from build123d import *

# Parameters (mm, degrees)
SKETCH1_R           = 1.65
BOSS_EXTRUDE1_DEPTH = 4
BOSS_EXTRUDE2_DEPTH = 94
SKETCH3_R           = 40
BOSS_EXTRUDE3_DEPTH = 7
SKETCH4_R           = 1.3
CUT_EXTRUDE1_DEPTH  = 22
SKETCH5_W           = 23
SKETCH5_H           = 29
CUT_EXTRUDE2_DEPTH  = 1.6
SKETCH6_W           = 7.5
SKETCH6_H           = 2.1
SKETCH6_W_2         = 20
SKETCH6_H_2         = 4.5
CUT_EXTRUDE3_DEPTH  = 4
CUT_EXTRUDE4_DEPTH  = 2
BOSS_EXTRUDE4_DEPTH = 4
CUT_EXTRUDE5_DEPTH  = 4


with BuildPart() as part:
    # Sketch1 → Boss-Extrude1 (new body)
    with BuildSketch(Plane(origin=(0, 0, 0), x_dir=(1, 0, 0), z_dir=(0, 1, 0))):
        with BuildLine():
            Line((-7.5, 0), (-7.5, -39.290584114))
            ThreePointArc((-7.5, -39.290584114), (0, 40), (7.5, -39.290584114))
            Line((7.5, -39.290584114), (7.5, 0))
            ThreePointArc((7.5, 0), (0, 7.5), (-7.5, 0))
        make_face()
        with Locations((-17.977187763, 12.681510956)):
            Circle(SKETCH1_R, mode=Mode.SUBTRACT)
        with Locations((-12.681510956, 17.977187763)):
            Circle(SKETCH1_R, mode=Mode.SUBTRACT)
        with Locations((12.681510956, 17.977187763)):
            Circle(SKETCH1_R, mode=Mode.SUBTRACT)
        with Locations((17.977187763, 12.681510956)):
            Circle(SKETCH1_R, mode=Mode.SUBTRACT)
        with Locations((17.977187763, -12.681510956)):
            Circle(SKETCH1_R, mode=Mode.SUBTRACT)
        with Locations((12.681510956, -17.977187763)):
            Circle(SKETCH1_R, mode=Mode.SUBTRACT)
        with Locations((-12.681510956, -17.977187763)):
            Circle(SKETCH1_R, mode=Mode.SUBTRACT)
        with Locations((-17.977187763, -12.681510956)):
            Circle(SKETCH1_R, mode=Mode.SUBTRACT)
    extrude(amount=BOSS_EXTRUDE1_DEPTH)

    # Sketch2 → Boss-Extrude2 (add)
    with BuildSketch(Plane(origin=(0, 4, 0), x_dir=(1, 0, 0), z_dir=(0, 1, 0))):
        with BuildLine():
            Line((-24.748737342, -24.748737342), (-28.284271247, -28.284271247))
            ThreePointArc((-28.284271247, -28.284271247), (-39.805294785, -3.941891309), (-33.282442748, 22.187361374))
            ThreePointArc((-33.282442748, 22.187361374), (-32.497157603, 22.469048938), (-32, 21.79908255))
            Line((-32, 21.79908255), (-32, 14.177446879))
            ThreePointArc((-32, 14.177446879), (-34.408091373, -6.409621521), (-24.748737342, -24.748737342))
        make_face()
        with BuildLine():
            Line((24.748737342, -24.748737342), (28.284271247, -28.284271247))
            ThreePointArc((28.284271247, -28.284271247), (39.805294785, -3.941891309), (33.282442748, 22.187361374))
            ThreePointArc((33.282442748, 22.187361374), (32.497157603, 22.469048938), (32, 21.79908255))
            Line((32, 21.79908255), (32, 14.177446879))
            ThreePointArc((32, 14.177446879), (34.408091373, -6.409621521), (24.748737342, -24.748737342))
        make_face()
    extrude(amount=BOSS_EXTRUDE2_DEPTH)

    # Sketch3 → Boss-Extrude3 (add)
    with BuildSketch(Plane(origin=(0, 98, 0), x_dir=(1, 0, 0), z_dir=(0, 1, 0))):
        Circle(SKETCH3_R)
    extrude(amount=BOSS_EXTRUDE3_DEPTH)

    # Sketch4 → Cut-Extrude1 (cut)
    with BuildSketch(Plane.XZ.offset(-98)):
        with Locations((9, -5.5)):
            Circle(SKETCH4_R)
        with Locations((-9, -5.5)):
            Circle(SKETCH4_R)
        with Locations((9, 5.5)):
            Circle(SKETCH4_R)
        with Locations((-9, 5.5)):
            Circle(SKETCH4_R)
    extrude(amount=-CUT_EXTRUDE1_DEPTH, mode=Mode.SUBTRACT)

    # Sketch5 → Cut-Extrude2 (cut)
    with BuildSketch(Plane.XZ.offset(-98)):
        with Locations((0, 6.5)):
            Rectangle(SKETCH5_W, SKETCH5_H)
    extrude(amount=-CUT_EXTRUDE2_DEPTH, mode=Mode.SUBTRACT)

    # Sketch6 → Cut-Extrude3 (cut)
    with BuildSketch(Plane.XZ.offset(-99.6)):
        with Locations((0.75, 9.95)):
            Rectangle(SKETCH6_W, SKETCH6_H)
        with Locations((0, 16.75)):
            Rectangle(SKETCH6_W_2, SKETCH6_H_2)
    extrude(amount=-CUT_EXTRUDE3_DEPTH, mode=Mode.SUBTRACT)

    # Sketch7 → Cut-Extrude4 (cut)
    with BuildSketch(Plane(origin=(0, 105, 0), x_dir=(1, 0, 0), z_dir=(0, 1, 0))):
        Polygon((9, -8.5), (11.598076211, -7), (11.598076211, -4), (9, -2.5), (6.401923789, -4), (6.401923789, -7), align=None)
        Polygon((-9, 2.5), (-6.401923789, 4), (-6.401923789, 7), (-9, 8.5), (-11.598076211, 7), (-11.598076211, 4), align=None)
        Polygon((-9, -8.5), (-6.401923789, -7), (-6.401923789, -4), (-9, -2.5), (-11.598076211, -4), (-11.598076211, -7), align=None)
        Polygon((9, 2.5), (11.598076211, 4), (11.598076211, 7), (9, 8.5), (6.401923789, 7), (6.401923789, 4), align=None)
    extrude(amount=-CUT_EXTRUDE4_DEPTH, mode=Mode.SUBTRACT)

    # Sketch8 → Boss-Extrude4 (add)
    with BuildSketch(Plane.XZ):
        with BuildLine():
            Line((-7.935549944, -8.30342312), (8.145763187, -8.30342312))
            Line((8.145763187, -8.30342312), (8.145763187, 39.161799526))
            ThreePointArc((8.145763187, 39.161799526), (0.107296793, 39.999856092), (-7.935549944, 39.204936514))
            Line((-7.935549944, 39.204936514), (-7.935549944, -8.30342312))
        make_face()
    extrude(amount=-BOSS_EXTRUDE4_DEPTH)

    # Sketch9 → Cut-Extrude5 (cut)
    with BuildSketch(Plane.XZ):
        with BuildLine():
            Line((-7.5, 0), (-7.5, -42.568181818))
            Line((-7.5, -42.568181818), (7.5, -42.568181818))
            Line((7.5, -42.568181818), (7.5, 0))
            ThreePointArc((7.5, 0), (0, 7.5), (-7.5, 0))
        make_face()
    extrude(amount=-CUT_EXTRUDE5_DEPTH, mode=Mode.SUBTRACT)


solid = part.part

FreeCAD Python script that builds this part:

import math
import FreeCAD as App
import Part
import Sketcher
Q = App.Units.Quantity


def add_polygon(sketch, points):
    """Adds a closed chain of lines whose ends are joined by coincident constraints."""
    first, n = sketch.GeometryCount, len(points)
    for a, b in zip(points, points[1:] + points[:1]):
        sketch.addGeometry(Part.LineSegment(App.Vector(*a, 0), App.Vector(*b, 0)), False)
    for i in range(n):
        sketch.addConstraint(Sketcher.Constraint("Coincident", first + i, 2, first + (i + 1) % n, 1))

doc = App.newDocument("Part")
params = doc.addObject("Spreadsheet::Sheet", "Params")
for row, (alias, value) in enumerate([
    ("sketch1_radius", "40 mm"),
    ("sketch1_diameter", "3.3 mm"),
    ("sketch1_radius2", "7.5 mm"),
    ("pad1_length", "4 mm"),
    ("sketch2_radius", "35 mm"),
    ("sketch2_radius2", "40 mm"),
    ("sketch2_radius3", "0.7 mm"),
    ("pad2_length", "94 mm"),
    ("sketch3_diameter", "80 mm"),
    ("pad3_length", "7 mm"),
    ("sketch4_diameter", "2.6 mm"),
    ("pocket1_length", "22 mm"),
    ("sketch5_width", "23 mm"),
    ("sketch5_height", "29 mm"),
    ("pocket2_length", "1.6 mm"),
    ("sketch6_width", "20 mm"),
    ("sketch6_width2", "7.5 mm"),
    ("sketch6_height", "2.1 mm"),
    ("sketch6_height2", "4.5 mm"),
    ("pocket3_length", "4 mm"),
    ("sketch7_height", "3 mm"),
    ("sketch7_length", "3 mm"),
    ("pocket4_length", "2 mm"),
    ("sketch8_radius", "40 mm"),
    ("pad4_length", "4 mm"),
    ("sketch9_radius", "7.5 mm"),
    ("pocket5_length", "4 mm"),
], start=1):
    params.set(f"A{row}", alias)
    params.set(f"B{row}", "=" + value)
    params.setAlias(f"B{row}", alias)

body = doc.addObject("PartDesign::Body", "Body")

sketch1 = doc.addObject("Sketcher::SketchObject", "Sketch")
body.addObject(sketch1)
sketch1.AttachmentSupport = (doc.XZ_Plane, [""])
sketch1.MapMode = "FlatFace"
sketch1.addGeometry(Part.LineSegment(App.Vector(-7.5, 39.3, 0), App.Vector(-7.5, 0, 0)), False)
sketch1.addGeometry(Part.ArcOfCircle(Part.Circle(App.Vector(0, 0, 0), App.Vector(0, 0, 1), 7.5), math.radians(180), math.radians(360)), False)
sketch1.addGeometry(Part.LineSegment(App.Vector(7.5, 0, 0), App.Vector(7.5, 39.3, 0)), False)
sketch1.addGeometry(Part.ArcOfCircle(Part.Circle(App.Vector(0, 0, 0), App.Vector(0, 0, 1), 40), math.radians(101), math.radians(439)), False)
sketch1.addGeometry(Part.Circle(App.Vector(12.7, 18, 0), App.Vector(0, 0, 1), 1.6), False)
sketch1.addGeometry(Part.Circle(App.Vector(18, 12.7, 0), App.Vector(0, 0, 1), 1.6), False)
sketch1.addGeometry(Part.Circle(App.Vector(-12.7, 18, 0), App.Vector(0, 0, 1), 1.6), False)
sketch1.addGeometry(Part.Circle(App.Vector(-18, 12.7, 0), App.Vector(0, 0, 1), 1.6), False)
sketch1.addGeometry(Part.Circle(App.Vector(18, -12.7, 0), App.Vector(0, 0, 1), 1.6), False)
sketch1.addGeometry(Part.Circle(App.Vector(12.7, -18, 0), App.Vector(0, 0, 1), 1.6), False)
sketch1.addGeometry(Part.Circle(App.Vector(-18, -12.7, 0), App.Vector(0, 0, 1), 1.6), False)
sketch1.addGeometry(Part.Circle(App.Vector(-12.7, -18, 0), App.Vector(0, 0, 1), 1.6), False)
sketch1.addConstraint(Sketcher.Constraint("Tangent", 0, 2, 1, 1))
sketch1.addConstraint(Sketcher.Constraint("Tangent", 1, 2, 2, 1))
sketch1.addConstraint(Sketcher.Constraint("Coincident", 2, 2, 3, 2))
sketch1.addConstraint(Sketcher.Constraint("Coincident", 3, 1, 0, 1))
sketch1.addConstraint(Sketcher.Constraint("Vertical", 0))
sketch1.addConstraint(Sketcher.Constraint("Vertical", 2))
sketch1.addConstraint(Sketcher.Constraint("Coincident", 1, 3, -1, 1))
sketch1.addConstraint(Sketcher.Constraint("Coincident", 3, 3, -1, 1))
sketch1.addConstraint(Sketcher.Constraint("Equal", 4, 5))
sketch1.addConstraint(Sketcher.Constraint("Equal", 5, 6))
sketch1.addConstraint(Sketcher.Constraint("Equal", 6, 7))
sketch1.addConstraint(Sketcher.Constraint("Equal", 7, 8))
sketch1.addConstraint(Sketcher.Constraint("Equal", 8, 9))
sketch1.addConstraint(Sketcher.Constraint("Equal", 9, 10))
sketch1.addConstraint(Sketcher.Constraint("Equal", 10, 11))
sketch1.addConstraint(Sketcher.Constraint("Symmetric", 7, 3, 8, 3, -1, 1))
sketch1.addConstraint(Sketcher.Constraint("Symmetric", 6, 3, 9, 3, -1, 1))
sketch1.addConstraint(Sketcher.Constraint("Symmetric", 5, 3, 10, 3, -1, 1))
sketch1.addConstraint(Sketcher.Constraint("Symmetric", 4, 3, 11, 3, -1, 1))
sketch1.addConstraint(Sketcher.Constraint("Symmetric", 4, 3, 6, 3, -2))
sketch1.addConstraint(Sketcher.Constraint("Symmetric", 5, 3, 7, 3, -2))
sketch1.addConstraint(Sketcher.Constraint("Radius", 3, Q("40 mm")))
sketch1.addConstraint(Sketcher.Constraint("Diameter", 4, Q("3.3 mm")))
sketch1.addConstraint(Sketcher.Constraint("Radius", 1, Q("7.5 mm")))
sketch1.addConstraint(Sketcher.Constraint("DistanceX", 6, 3, 5, 3, Q("30.658699 mm")))
sketch1.addConstraint(Sketcher.Constraint("DistanceY", 8, 3, 4, 3, Q("30.658699 mm")))
sketch1.addConstraint(Sketcher.Constraint("DistanceX", -1, 1, 4, 3, Q("12.681511 mm")))
sketch1.addConstraint(Sketcher.Constraint("DistanceY", -1, 1, 5, 3, Q("12.681511 mm")))
sketch1.setExpression("Constraints[21]", "Params.sketch1_radius")
sketch1.setExpression("Constraints[22]", "Params.sketch1_diameter")
sketch1.setExpression("Constraints[23]", "Params.sketch1_radius2")
pad1 = doc.addObject("PartDesign::Pad", "Pad")
body.addObject(pad1)
pad1.Profile = sketch1
pad1.setExpression("Length", "Params.pad1_length")
pad1.Reversed = True

sketch2 = doc.addObject("Sketcher::SketchObject", "Sketch001")
body.addObject(sketch2)
sketch2.AttachmentSupport = (doc.XZ_Plane, [""])
sketch2.MapMode = "FlatFace"
sketch2.AttachmentOffset = App.Placement(App.Vector(0, 0, -4), App.Rotation())
sketch2.addGeometry(Part.LineSegment(App.Vector(-28.3, 28.3, 0), App.Vector(-24.7, 24.7, 0)), False)
sketch2.addGeometry(Part.ArcOfCircle(Part.Circle(App.Vector(0, 0, 0), App.Vector(0, 0, 1), 35), math.radians(135), math.radians(204)), False)
sketch2.addGeometry(Part.LineSegment(App.Vector(-32, -14.2, 0), App.Vector(-32, -21.8, 0)), False)
sketch2.addGeometry(Part.ArcOfCircle(Part.Circle(App.Vector(-32.7, -21.8, 0), App.Vector(0, 0, 1), 0.7), math.radians(-146), math.radians(0)), False)
sketch2.addGeometry(Part.ArcOfCircle(Part.Circle(App.Vector(0, 0, 0), App.Vector(0, 0, 1), 40), math.radians(135), math.radians(214)), False)
sketch2.addGeometry(Part.LineSegment(App.Vector(24.7, 24.7, 0), App.Vector(28.3, 28.3, 0)), False)
sketch2.addGeometry(Part.ArcOfCircle(Part.Circle(App.Vector(0, 0, 0), App.Vector(0, 0, 1), 40), math.radians(-34), math.radians(45)), False)
sketch2.addGeometry(Part.ArcOfCircle(Part.Circle(App.Vector(32.7, -21.8, 0), App.Vector(0, 0, 1), 0.7), math.radians(-180), math.radians(-34)), False)
sketch2.addGeometry(Part.LineSegment(App.Vector(32, -21.8, 0), App.Vector(32, -14.2, 0)), False)
sketch2.addGeometry(Part.ArcOfCircle(Part.Circle(App.Vector(0, 0, 0), App.Vector(0, 0, 1), 35), math.radians(-24), math.radians(45)), False)
sketch2.addConstraint(Sketcher.Constraint("Coincident", 0, 2, 1, 1))
sketch2.addConstraint(Sketcher.Constraint("Coincident", 1, 2, 2, 1))
sketch2.addConstraint(Sketcher.Constraint("Tangent", 2, 2, 3, 2))
sketch2.addConstraint(Sketcher.Constraint("Tangent", 3, 1, 4, 2))
sketch2.addConstraint(Sketcher.Constraint("Coincident", 4, 1, 0, 1))
sketch2.addConstraint(Sketcher.Constraint("Coincident", 5, 2, 6, 2))
sketch2.addConstraint(Sketcher.Constraint("Tangent", 6, 1, 7, 2))
sketch2.addConstraint(Sketcher.Constraint("Tangent", 7, 1, 8, 1))
sketch2.addConstraint(Sketcher.Constraint("Coincident", 8, 2, 9, 1))
sketch2.addConstraint(Sketcher.Constraint("Coincident", 9, 2, 5, 1))
sketch2.addConstraint(Sketcher.Constraint("Vertical", 2))
sketch2.addConstraint(Sketcher.Constraint("Vertical", 8))
sketch2.addConstraint(Sketcher.Constraint("Coincident", 1, 3, -1, 1))
sketch2.addConstraint(Sketcher.Constraint("Coincident", 4, 3, -1, 1))
sketch2.addConstraint(Sketcher.Constraint("Coincident", 6, 3, -1, 1))
sketch2.addConstraint(Sketcher.Constraint("Coincident", 9, 3, -1, 1))
sketch2.addConstraint(Sketcher.Constraint("Equal", 4, 6))
sketch2.addConstraint(Sketcher.Constraint("Equal", 3, 7))
sketch2.addConstraint(Sketcher.Constraint("Equal", 1, 9))
sketch2.addConstraint(Sketcher.Constraint("Perpendicular", 0, 5))
sketch2.addConstraint(Sketcher.Constraint("Horizontal", 3, 3, 7, 3))
sketch2.addConstraint(Sketcher.Constraint("Horizontal", 4, 1, 5, 2))
sketch2.addConstraint(Sketcher.Constraint("Horizontal", 0, 2, 9, 2))
sketch2.addConstraint(Sketcher.Constraint("Radius", 1, Q("35 mm")))
sketch2.addConstraint(Sketcher.Constraint("Radius", 4, Q("40 mm")))
sketch2.addConstraint(Sketcher.Constraint("Radius", 3, Q("0.7 mm")))
sketch2.addConstraint(Sketcher.Constraint("DistanceX", 1, 2, -1, 1, Q("32 mm")))
sketch2.addConstraint(Sketcher.Constraint("DistanceX", 4, 1, -1, 1, Q("28.284271 mm")))
sketch2.setExpression("Constraints[23]", "Params.sketch2_radius")
sketch2.setExpression("Constraints[24]", "Params.sketch2_radius2")
sketch2.setExpression("Constraints[25]", "Params.sketch2_radius3")
pad2 = doc.addObject("PartDesign::Pad", "Pad001")
body.addObject(pad2)
pad2.Profile = sketch2
pad2.setExpression("Length", "Params.pad2_length")
pad2.Reversed = True

sketch3 = doc.addObject("Sketcher::SketchObject", "Sketch002")
body.addObject(sketch3)
sketch3.AttachmentSupport = (doc.XZ_Plane, [""])
sketch3.MapMode = "FlatFace"
sketch3.AttachmentOffset = App.Placement(App.Vector(0, 0, -98), App.Rotation())
sketch3.addGeometry(Part.Circle(App.Vector(0, 0, 0), App.Vector(0, 0, 1), 40), False)
sketch3.addConstraint(Sketcher.Constraint("Coincident", 0, 3, -1, 1))
sketch3.addConstraint(Sketcher.Constraint("Diameter", 0, Q("80 mm")))
sketch3.setExpression("Constraints[1]", "Params.sketch3_diameter")
pad3 = doc.addObject("PartDesign::Pad", "Pad002")
body.addObject(pad3)
pad3.Profile = sketch3
pad3.setExpression("Length", "Params.pad3_length")
pad3.Reversed = True

sketch4 = doc.addObject("Sketcher::SketchObject", "Sketch003")
body.addObject(sketch4)
sketch4.AttachmentSupport = (doc.XZ_Plane, [""])
sketch4.MapMode = "FlatFace"
sketch4.AttachmentOffset = App.Placement(App.Vector(0, 0, -98), App.Rotation())
sketch4.addGeometry(Part.Circle(App.Vector(9, -5.5, 0), App.Vector(0, 0, 1), 1.3), False)
sketch4.addGeometry(Part.Circle(App.Vector(-9, -5.5, 0), App.Vector(0, 0, 1), 1.3), False)
sketch4.addGeometry(Part.Circle(App.Vector(9, 5.5, 0), App.Vector(0, 0, 1), 1.3), False)
sketch4.addGeometry(Part.Circle(App.Vector(-9, 5.5, 0), App.Vector(0, 0, 1), 1.3), False)
sketch4.addConstraint(Sketcher.Constraint("Equal", 0, 1))
sketch4.addConstraint(Sketcher.Constraint("Equal", 1, 2))
sketch4.addConstraint(Sketcher.Constraint("Equal", 2, 3))
sketch4.addConstraint(Sketcher.Constraint("Symmetric", 1, 3, 2, 3, -1, 1))
sketch4.addConstraint(Sketcher.Constraint("Symmetric", 0, 3, 3, 3, -1, 1))
sketch4.addConstraint(Sketcher.Constraint("Symmetric", 0, 3, 1, 3, -2))
sketch4.addConstraint(Sketcher.Constraint("Diameter", 0, Q("2.6 mm")))
sketch4.addConstraint(Sketcher.Constraint("DistanceX", -1, 1, 0, 3, Q("9 mm")))
sketch4.addConstraint(Sketcher.Constraint("DistanceY", 0, 3, 2, 3, Q("11 mm")))
sketch4.setExpression("Constraints[6]", "Params.sketch4_diameter")
pocket1 = doc.addObject("PartDesign::Pocket", "Pocket")
body.addObject(pocket1)
pocket1.Profile = sketch4
pocket1.setExpression("Length", "Params.pocket1_length")

sketch5 = doc.addObject("Sketcher::SketchObject", "Sketch004")
body.addObject(sketch5)
sketch5.AttachmentSupport = (doc.XZ_Plane, [""])
sketch5.MapMode = "FlatFace"
sketch5.AttachmentOffset = App.Placement(App.Vector(0, 0, -98), App.Rotation())
add_polygon(sketch5, [(-12, 21), (-12, -8), (12, -8), (12, 21)])
sketch5.addConstraint(Sketcher.Constraint("Vertical", 0))
sketch5.addConstraint(Sketcher.Constraint("Horizontal", 1))
sketch5.addConstraint(Sketcher.Constraint("Vertical", 2))
sketch5.addConstraint(Sketcher.Constraint("Horizontal", 3))
sketch5.addConstraint(Sketcher.Constraint("DistanceX", 1, 1, 1, 2, Q("23 mm")))
sketch5.addConstraint(Sketcher.Constraint("DistanceY", 0, 2, 0, 1, Q("29 mm")))
sketch5.addConstraint(Sketcher.Constraint("DistanceY", 0, 2, -1, 1, Q("8 mm")))
sketch5.addConstraint(Sketcher.Constraint("DistanceX", 0, 2, -1, 1, Q("11.5 mm")))
sketch5.setExpression("Constraints[8]", "Params.sketch5_width")
sketch5.setExpression("Constraints[9]", "Params.sketch5_height")
pocket2 = doc.addObject("PartDesign::Pocket", "Pocket001")
body.addObject(pocket2)
pocket2.Profile = sketch5
pocket2.setExpression("Length", "Params.pocket2_length")

sketch6 = doc.addObject("Sketcher::SketchObject", "Sketch005")
body.addObject(sketch6)
sketch6.AttachmentSupport = (doc.XZ_Plane, [""])
sketch6.MapMode = "FlatFace"
sketch6.AttachmentOffset = App.Placement(App.Vector(0, 0, -99.6), App.Rotation())
add_polygon(sketch6, [(-3, 11), (-3, 8.9), (4.5, 8.9), (4.5, 11)])
add_polygon(sketch6, [(-10, 19), (-10, 14.5), (10, 14.5), (10, 19)])
sketch6.addConstraint(Sketcher.Constraint("Vertical", 0))
sketch6.addConstraint(Sketcher.Constraint("Horizontal", 1))
sketch6.addConstraint(Sketcher.Constraint("Vertical", 2))
sketch6.addConstraint(Sketcher.Constraint("Horizontal", 3))
sketch6.addConstraint(Sketcher.Constraint("Vertical", 4))
sketch6.addConstraint(Sketcher.Constraint("Horizontal", 5))
sketch6.addConstraint(Sketcher.Constraint("Vertical", 6))
sketch6.addConstraint(Sketcher.Constraint("Horizontal", 7))
sketch6.addConstraint(Sketcher.Constraint("DistanceX", 5, 1, 5, 2, Q("20 mm")))
sketch6.addConstraint(Sketcher.Constraint("DistanceX", 1, 1, 1, 2, Q("7.5 mm")))
sketch6.addConstraint(Sketcher.Constraint("DistanceY", 0, 2, 0, 1, Q("2.1 mm")))
sketch6.addConstraint(Sketcher.Constraint("DistanceY", 4, 2, 4, 1, Q("4.5 mm")))
sketch6.addConstraint(Sketcher.Constraint("DistanceX", 0, 2, -1, 1, Q("3 mm")))
sketch6.addConstraint(Sketcher.Constraint("DistanceY", -1, 1, 2, 2, Q("11 mm")))
sketch6.addConstraint(Sketcher.Constraint("DistanceX", 4, 2, -1, 1, Q("10 mm")))
sketch6.addConstraint(Sketcher.Constraint("DistanceY", -1, 1, 6, 2, Q("19 mm")))
sketch6.setExpression("Constraints[16]", "Params.sketch6_width")
sketch6.setExpression("Constraints[17]", "Params.sketch6_width2")
sketch6.setExpression("Constraints[18]", "Params.sketch6_height")
sketch6.setExpression("Constraints[19]", "Params.sketch6_height2")
pocket3 = doc.addObject("PartDesign::Pocket", "Pocket002")
body.addObject(pocket3)
pocket3.Profile = sketch6
pocket3.setExpression("Length", "Params.pocket3_length")

sketch7 = doc.addObject("Sketcher::SketchObject", "Sketch006")
body.addObject(sketch7)
sketch7.AttachmentSupport = (doc.XZ_Plane, [""])
sketch7.MapMode = "FlatFace"
sketch7.AttachmentOffset = App.Placement(App.Vector(0, 0, -105), App.Rotation())
add_polygon(sketch7, [(9, 8.5), (11.6, 7), (11.6, 4), (9, 2.5), (6.4, 4), (6.4, 7)])
add_polygon(sketch7, [(-9, -2.5), (-6.4, -4), (-6.4, -7), (-9, -8.5), (-11.6, -7), (-11.6, -4)])
add_polygon(sketch7, [(-9, 8.5), (-6.4, 7), (-6.4, 4), (-9, 2.5), (-11.6, 4), (-11.6, 7)])
add_polygon(sketch7, [(9, -2.5), (11.6, -4), (11.6, -7), (9, -8.5), (6.4, -7), (6.4, -4)])
sketch7.addConstraint(Sketcher.Constraint("Vertical", 1))
sketch7.addConstraint(Sketcher.Constraint("Vertical", 4))
sketch7.addConstraint(Sketcher.Constraint("Vertical", 7))
sketch7.addConstraint(Sketcher.Constraint("Vertical", 10))
sketch7.addConstraint(Sketcher.Constraint("Vertical", 13))
sketch7.addConstraint(Sketcher.Constraint("Vertical", 16))
sketch7.addConstraint(Sketcher.Constraint("Vertical", 19))
sketch7.addConstraint(Sketcher.Constraint("Vertical", 22))
sketch7.addConstraint(Sketcher.Constraint("Symmetric", 3, 2, 6, 2, -1, 1))
sketch7.addConstraint(Sketcher.Constraint("Symmetric", 5, 2, 8, 2, -1, 1))
sketch7.addConstraint(Sketcher.Constraint("Symmetric", 0, 2, 9, 2, -1, 1))
sketch7.addConstraint(Sketcher.Constraint("Symmetric", 2, 2, 11, 2, -1, 1))
sketch7.addConstraint(Sketcher.Constraint("Symmetric", 15, 2, 18, 2, -1, 1))
sketch7.addConstraint(Sketcher.Constraint("Symmetric", 17, 2, 20, 2, -1, 1))
sketch7.addConstraint(Sketcher.Constraint("Symmetric", 12, 2, 21, 2, -1, 1))
sketch7.addConstraint(Sketcher.Constraint("Symmetric", 14, 2, 23, 2, -1, 1))
sketch7.addConstraint(Sketcher.Constraint("Symmetric", 4, 2, 12, 2, -2))
sketch7.addConstraint(Sketcher.Constraint("Symmetric", 2, 2, 14, 2, -2))
sketch7.addConstraint(Sketcher.Constraint("Symmetric", 1, 2, 15, 2, -2))
sketch7.addConstraint(Sketcher.Constraint("Symmetric", 5, 2, 17, 2, -2))
sketch7.addConstraint(Sketcher.Constraint("Parallel", 0, 3))
sketch7.addConstraint(Sketcher.Constraint("Parallel", 2, 5))
sketch7.addConstraint(Sketcher.Constraint("Parallel", 5, 8))
sketch7.addConstraint(Sketcher.Constraint("Parallel", 8, 11))
sketch7.addConstraint(Sketcher.Constraint("Parallel", 9, 12))
sketch7.addConstraint(Sketcher.Constraint("Parallel", 11, 14))
sketch7.addConstraint(Sketcher.Constraint("Parallel", 14, 17))
sketch7.addConstraint(Sketcher.Constraint("Parallel", 17, 20))
sketch7.addConstraint(Sketcher.Constraint("Parallel", 20, 23))
sketch7.addConstraint(Sketcher.Constraint("Horizontal", 1, 2, 3, 2))
sketch7.addConstraint(Sketcher.Constraint("Horizontal", 0, 2, 4, 2))
sketch7.addConstraint(Sketcher.Constraint("DistanceY", 1, 2, 1, 1, Q("3 mm")))
sketch7.addConstraint(Sketcher.Constraint("Angle", 0, Q("-30 deg")))
sketch7.addConstraint(Sketcher.Constraint("Distance", 0, Q("3 mm")))
sketch7.addConstraint(Sketcher.Constraint("DistanceY", -1, 1, 0, 2, Q("7 mm")))
sketch7.addConstraint(Sketcher.Constraint("DistanceX", -1, 1, 2, 2, Q("9 mm")))
sketch7.setExpression("Constraints[55]", "Params.sketch7_height")
sketch7.setExpression("Constraints[57]", "Params.sketch7_length")
pocket4 = doc.addObject("PartDesign::Pocket", "Pocket003")
body.addObject(pocket4)
pocket4.Profile = sketch7
pocket4.setExpression("Length", "Params.pocket4_length")
pocket4.Reversed = True

sketch8 = doc.addObject("Sketcher::SketchObject", "Sketch007")
body.addObject(sketch8)
sketch8.AttachmentSupport = (doc.XZ_Plane, [""])
sketch8.MapMode = "FlatFace"
sketch8.addGeometry(Part.LineSegment(App.Vector(-8, -8, 0), App.Vector(8, -8, 0)), False)
sketch8.addGeometry(Part.LineSegment(App.Vector(8, -8, 0), App.Vector(8, 39, 0)), False)
sketch8.addGeometry(Part.ArcOfCircle(Part.Circle(App.Vector(0, 0, 0), App.Vector(0, 0, 1), 40), math.radians(78), math.radians(101)), False)
sketch8.addGeometry(Part.LineSegment(App.Vector(-8, 39, 0), App.Vector(-8, -8, 0)), False)
sketch8.addConstraint(Sketcher.Constraint("Coincident", 0, 2, 1, 1))
sketch8.addConstraint(Sketcher.Constraint("Coincident", 1, 2, 2, 1))
sketch8.addConstraint(Sketcher.Constraint("Coincident", 2, 2, 3, 1))
sketch8.addConstraint(Sketcher.Constraint("Coincident", 3, 2, 0, 1))
sketch8.addConstraint(Sketcher.Constraint("Horizontal", 0))
sketch8.addConstraint(Sketcher.Constraint("Vertical", 1))
sketch8.addConstraint(Sketcher.Constraint("Vertical", 3))
sketch8.addConstraint(Sketcher.Constraint("Coincident", 2, 3, -1, 1))
sketch8.addConstraint(Sketcher.Constraint("Radius", 2, Q("40 mm")))
sketch8.addConstraint(Sketcher.Constraint("DistanceY", 3, 2, 3, 1, Q("47.50836 mm")))
sketch8.addConstraint(Sketcher.Constraint("DistanceY", -1, 1, 1, 2, Q("39.1618 mm")))
sketch8.addConstraint(Sketcher.Constraint("DistanceX", 0, 1, 0, 2, Q("16.081313 mm")))
sketch8.setExpression("Constraints[8]", "Params.sketch8_radius")
pad4 = doc.addObject("PartDesign::Pad", "Pad003")
body.addObject(pad4)
pad4.Profile = sketch8
pad4.setExpression("Length", "Params.pad4_length")
pad4.Reversed = True

sketch9 = doc.addObject("Sketcher::SketchObject", "Sketch008")
body.addObject(sketch9)
sketch9.AttachmentSupport = (doc.XZ_Plane, [""])
sketch9.MapMode = "FlatFace"
sketch9.addGeometry(Part.LineSegment(App.Vector(-8, 0, 0), App.Vector(-8, -43, 0)), False)
sketch9.addGeometry(Part.LineSegment(App.Vector(-8, -43, 0), App.Vector(8, -43, 0)), False)
sketch9.addGeometry(Part.LineSegment(App.Vector(8, -43, 0), App.Vector(8, 0, 0)), False)
sketch9.addGeometry(Part.ArcOfCircle(Part.Circle(App.Vector(0, 0, 0), App.Vector(0, 0, 1), 8), math.radians(0), math.radians(180)), False)
sketch9.addConstraint(Sketcher.Constraint("Coincident", 0, 2, 1, 1))
sketch9.addConstraint(Sketcher.Constraint("Coincident", 1, 2, 2, 1))
sketch9.addConstraint(Sketcher.Constraint("Tangent", 2, 2, 3, 1))
sketch9.addConstraint(Sketcher.Constraint("Tangent", 3, 2, 0, 1))
sketch9.addConstraint(Sketcher.Constraint("Vertical", 0))
sketch9.addConstraint(Sketcher.Constraint("Horizontal", 1))
sketch9.addConstraint(Sketcher.Constraint("Vertical", 2))
sketch9.addConstraint(Sketcher.Constraint("Coincident", 3, 3, -1, 1))
sketch9.addConstraint(Sketcher.Constraint("Radius", 3, Q("7.5 mm")))
sketch9.addConstraint(Sketcher.Constraint("DistanceY", 0, 2, 0, 1, Q("42.568182 mm")))
sketch9.setExpression("Constraints[8]", "Params.sketch9_radius")
pocket5 = doc.addObject("PartDesign::Pocket", "Pocket004")
body.addObject(pocket5)
pocket5.Profile = sketch9
pocket5.setExpression("Length", "Params.pocket5_length")

doc.recompute()
